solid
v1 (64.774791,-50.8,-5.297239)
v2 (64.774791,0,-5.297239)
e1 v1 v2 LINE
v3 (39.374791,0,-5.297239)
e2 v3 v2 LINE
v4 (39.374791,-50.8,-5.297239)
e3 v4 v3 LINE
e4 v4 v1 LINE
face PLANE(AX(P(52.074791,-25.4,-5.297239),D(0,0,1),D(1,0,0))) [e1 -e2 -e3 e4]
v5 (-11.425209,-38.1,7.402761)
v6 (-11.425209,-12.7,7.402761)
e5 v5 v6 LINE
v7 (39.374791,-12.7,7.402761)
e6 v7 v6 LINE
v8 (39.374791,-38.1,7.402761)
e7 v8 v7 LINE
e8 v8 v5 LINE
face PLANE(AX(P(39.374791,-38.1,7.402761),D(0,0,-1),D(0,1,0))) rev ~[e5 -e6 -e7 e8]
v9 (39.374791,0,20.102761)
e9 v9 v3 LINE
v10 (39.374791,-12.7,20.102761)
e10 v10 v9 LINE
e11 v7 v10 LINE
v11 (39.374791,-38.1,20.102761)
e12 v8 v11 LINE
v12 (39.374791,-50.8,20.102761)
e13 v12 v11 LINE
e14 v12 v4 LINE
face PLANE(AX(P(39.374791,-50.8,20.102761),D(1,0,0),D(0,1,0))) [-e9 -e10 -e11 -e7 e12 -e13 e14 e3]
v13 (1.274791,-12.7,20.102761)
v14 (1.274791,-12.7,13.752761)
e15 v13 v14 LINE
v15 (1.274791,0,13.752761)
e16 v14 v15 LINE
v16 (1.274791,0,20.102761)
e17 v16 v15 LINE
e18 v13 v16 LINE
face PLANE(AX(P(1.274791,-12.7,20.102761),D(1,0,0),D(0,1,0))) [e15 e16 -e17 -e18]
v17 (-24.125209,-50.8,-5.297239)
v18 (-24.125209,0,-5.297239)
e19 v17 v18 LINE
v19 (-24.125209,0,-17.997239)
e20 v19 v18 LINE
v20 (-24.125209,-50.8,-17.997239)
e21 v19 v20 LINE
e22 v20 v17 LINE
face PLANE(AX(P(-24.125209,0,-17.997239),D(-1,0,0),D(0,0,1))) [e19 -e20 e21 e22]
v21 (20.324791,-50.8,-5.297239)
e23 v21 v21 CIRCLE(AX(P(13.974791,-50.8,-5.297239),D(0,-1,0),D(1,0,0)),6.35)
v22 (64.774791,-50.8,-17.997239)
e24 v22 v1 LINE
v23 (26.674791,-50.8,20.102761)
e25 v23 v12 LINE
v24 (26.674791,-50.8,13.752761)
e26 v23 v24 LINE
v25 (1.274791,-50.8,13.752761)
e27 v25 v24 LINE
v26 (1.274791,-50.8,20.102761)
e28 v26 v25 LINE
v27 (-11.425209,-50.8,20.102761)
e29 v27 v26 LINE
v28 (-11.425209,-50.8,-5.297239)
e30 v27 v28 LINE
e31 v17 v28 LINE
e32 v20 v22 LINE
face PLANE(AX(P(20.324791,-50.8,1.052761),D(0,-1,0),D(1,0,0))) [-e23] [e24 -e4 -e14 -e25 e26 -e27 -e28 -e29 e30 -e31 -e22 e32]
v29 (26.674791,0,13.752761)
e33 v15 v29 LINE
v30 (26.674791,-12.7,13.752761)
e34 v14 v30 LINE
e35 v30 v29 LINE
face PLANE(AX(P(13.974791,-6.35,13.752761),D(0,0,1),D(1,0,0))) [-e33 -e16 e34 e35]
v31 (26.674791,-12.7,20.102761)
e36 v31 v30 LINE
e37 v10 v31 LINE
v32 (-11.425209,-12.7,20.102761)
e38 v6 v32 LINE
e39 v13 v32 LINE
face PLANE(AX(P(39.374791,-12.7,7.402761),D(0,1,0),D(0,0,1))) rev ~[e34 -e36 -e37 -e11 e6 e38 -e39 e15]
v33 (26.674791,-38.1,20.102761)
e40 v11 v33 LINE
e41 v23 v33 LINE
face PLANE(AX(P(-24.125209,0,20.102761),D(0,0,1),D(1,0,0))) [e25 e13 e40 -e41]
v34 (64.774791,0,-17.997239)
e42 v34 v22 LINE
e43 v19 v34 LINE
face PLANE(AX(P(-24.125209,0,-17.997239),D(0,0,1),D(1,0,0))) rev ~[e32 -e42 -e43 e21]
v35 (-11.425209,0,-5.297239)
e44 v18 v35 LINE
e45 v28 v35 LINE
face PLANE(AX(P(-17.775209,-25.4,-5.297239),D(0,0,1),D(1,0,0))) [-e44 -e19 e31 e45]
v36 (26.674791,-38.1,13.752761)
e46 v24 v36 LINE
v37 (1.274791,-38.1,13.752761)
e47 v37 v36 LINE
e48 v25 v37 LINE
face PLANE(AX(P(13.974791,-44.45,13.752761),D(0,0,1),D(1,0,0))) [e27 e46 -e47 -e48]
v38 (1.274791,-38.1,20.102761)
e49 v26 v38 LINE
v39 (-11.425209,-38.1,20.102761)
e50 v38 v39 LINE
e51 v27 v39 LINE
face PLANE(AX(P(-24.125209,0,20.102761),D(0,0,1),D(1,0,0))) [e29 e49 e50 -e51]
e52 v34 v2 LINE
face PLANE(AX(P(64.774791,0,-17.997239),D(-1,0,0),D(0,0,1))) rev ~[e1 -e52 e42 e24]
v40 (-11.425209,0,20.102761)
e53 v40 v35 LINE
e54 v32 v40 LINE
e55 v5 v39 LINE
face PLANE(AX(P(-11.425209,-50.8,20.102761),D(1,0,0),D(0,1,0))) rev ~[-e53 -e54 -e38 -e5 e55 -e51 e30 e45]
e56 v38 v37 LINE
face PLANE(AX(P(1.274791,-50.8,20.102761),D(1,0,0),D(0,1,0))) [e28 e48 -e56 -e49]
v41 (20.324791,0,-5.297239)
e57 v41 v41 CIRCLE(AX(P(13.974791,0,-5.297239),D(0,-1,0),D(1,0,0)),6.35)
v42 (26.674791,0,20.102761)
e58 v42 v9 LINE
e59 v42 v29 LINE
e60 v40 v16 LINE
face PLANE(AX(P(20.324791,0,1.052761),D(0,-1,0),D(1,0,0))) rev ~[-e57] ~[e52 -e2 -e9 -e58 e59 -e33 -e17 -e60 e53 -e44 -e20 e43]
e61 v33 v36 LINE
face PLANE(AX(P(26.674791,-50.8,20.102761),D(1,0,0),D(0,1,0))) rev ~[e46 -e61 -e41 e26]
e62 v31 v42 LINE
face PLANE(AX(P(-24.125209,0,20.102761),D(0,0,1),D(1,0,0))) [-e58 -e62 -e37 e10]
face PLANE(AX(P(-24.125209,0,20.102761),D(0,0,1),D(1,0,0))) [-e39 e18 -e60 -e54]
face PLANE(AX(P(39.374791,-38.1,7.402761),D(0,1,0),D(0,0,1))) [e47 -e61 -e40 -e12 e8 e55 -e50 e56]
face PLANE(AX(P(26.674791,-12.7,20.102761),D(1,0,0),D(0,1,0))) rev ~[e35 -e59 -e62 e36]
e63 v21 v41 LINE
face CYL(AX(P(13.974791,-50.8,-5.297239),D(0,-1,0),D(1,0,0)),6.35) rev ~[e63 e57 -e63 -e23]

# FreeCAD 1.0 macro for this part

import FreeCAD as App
import Part
import Sketcher

V = App.Vector
Q = App.Units.Quantity


def add_polygon(sketch, points):
    """Adds a closed chain of lines whose ends are joined by coincident constraints."""
    first, n = sketch.GeometryCount, len(points)
    for a, b in zip(points, points[1:] + points[:1]):
        sketch.addGeometry(Part.LineSegment(App.Vector(*a, 0), App.Vector(*b, 0)), False)
    for i in range(n):
        sketch.addConstraint(Sketcher.Constraint("Coincident", first + i, 2, first + (i + 1) % n, 1))

doc = App.newDocument("Part")
params = doc.addObject("Spreadsheet::Sheet", "Params")
for row, (alias, value) in enumerate([
    ("sketch1_width", "3.5 in"),
    ("sketch1_height", "1.5 in"),
    ("pad1_length", "2 in"),
    ("sketch2_height", "2 in"),
    ("sketch2_width", "0.5 in"),
    ("pocket1_length", "1 in"),
    ("sketch3_width", "1 in"),
    ("sketch3_height", "2 in"),
    ("pocket2_length", "1 in"),
    ("sketch4_width", "1 in"),
    ("sketch4_height", "0.5 in"),
    ("pocket3_length", "0.25 in"),
    ("sketch5_width", "1 in"),
    ("sketch5_height", "0.5 in"),
    ("pocket4_length", "0.25 in"),
    ("sketch6_width", "1 in"),
    ("sketch6_height", "0.5 in"),
    ("sketch7_diameter", "0.5 in"),
], start=1):
    params.set(f"A{row}", alias)
    params.set(f"B{row}", "=" + value)
    params.setAlias(f"B{row}", alias)

body = doc.addObject("PartDesign::Body", "Body")

# Sketch on XZ plane
sketch1 = doc.addObject("Sketcher::SketchObject", "Sketch")
body.addObject(sketch1)
sketch1.AttachmentSupport = (doc.XZ_Plane, [""])
sketch1.MapMode = "FlatFace"
add_polygon(sketch1, [(-24, 20), (-24, -18), (65, -18), (65, 20)])  # lines 0-3
sketch1.addConstraint(Sketcher.Constraint("Vertical", 0))
sketch1.addConstraint(Sketcher.Constraint("Horizontal", 1))
sketch1.addConstraint(Sketcher.Constraint("Vertical", 2))
sketch1.addConstraint(Sketcher.Constraint("Horizontal", 3))
sketch1.addConstraint(Sketcher.Constraint("DistanceX", 1, 1, 1, 2, Q("3.5 in")))
sketch1.addConstraint(Sketcher.Constraint("DistanceY", 0, 2, 0, 1, Q("1.5 in")))
sketch1.addConstraint(Sketcher.Constraint("DistanceX", 0, 2, -1, 1, Q("24.125209 mm")))
sketch1.addConstraint(Sketcher.Constraint("DistanceY", 0, 2, -1, 1, Q("17.997239 mm")))
sketch1.setExpression("Constraints[8]", "Params.sketch1_width")
sketch1.setExpression("Constraints[9]", "Params.sketch1_height")
pad1 = doc.addObject("PartDesign::Pad", "Pad")
body.addObject(pad1)
pad1.Profile = sketch1
pad1.setExpression("Length", "Params.pad1_length")

# Sketch on XY plane
sketch2 = doc.addObject("Sketcher::SketchObject", "Sketch001")
body.addObject(sketch2)
sketch2.AttachmentSupport = (doc.XY_Plane, [""])
sketch2.MapMode = "FlatFace"
sketch2.AttachmentOffset = App.Placement(V(0, 0, 20.102761), App.Rotation())
add_polygon(sketch2, [(-24, 0), (-24, -51), (-11, -51), (-11, 0)])  # lines 0-3
sketch2.addConstraint(Sketcher.Constraint("Vertical", 0))
sketch2.addConstraint(Sketcher.Constraint("Horizontal", 1))
sketch2.addConstraint(Sketcher.Constraint("Vertical", 2))
sketch2.addConstraint(Sketcher.Constraint("Horizontal", 3))
sketch2.addConstraint(Sketcher.Constraint("PointOnObject", 2, 2, -1))
sketch2.addConstraint(Sketcher.Constraint("DistanceY", 0, 2, 0, 1, Q("2 in")))
sketch2.addConstraint(Sketcher.Constraint("DistanceX", 1, 1, 1, 2, Q("0.5 in")))
sketch2.addConstraint(Sketcher.Constraint("DistanceX", 0, 2, -1, 1, Q("24.125209 mm")))
sketch2.setExpression("Constraints[9]", "Params.sketch2_height")
sketch2.setExpression("Constraints[10]", "Params.sketch2_width")
pocket1 = doc.addObject("PartDesign::Pocket", "Pocket")
body.addObject(pocket1)
pocket1.Profile = sketch2
pocket1.setExpression("Length", "Params.pocket1_length")

# Sketch on XY plane
sketch3 = doc.addObject("Sketcher::SketchObject", "Sketch002")
body.addObject(sketch3)
sketch3.AttachmentSupport = (doc.XY_Plane, [""])
sketch3.MapMode = "FlatFace"
sketch3.AttachmentOffset = App.Placement(V(0, 0, 20.102761), App.Rotation())
add_polygon(sketch3, [(39, 0), (39, -51), (65, -51), (65, 0)])  # lines 0-3
sketch3.addConstraint(Sketcher.Constraint("Vertical", 0))
sketch3.addConstraint(Sketcher.Constraint("Horizontal", 1))
sketch3.addConstraint(Sketcher.Constraint("Vertical", 2))
sketch3.addConstraint(Sketcher.Constraint("Horizontal", 3))
sketch3.addConstraint(Sketcher.Constraint("PointOnObject", 2, 2, -1))
sketch3.addConstraint(Sketcher.Constraint("DistanceX", 1, 1, 1, 2, Q("1 in")))
sketch3.addConstraint(Sketcher.Constraint("DistanceY", 0, 2, 0, 1, Q("2 in")))
sketch3.addConstraint(Sketcher.Constraint("DistanceX", -1, 1, 0, 2, Q("39.374791 mm")))
sketch3.setExpression("Constraints[9]", "Params.sketch3_width")
sketch3.setExpression("Constraints[10]", "Params.sketch3_height")
pocket2 = doc.addObject("PartDesign::Pocket", "Pocket001")
body.addObject(pocket2)
pocket2.Profile = sketch3
pocket2.setExpression("Length", "Params.pocket2_length")

# Sketch on XY plane
sketch4 = doc.addObject("Sketcher::SketchObject", "Sketch003")
body.addObject(sketch4)
sketch4.AttachmentSupport = (doc.XY_Plane, [""])
sketch4.MapMode = "FlatFace"
sketch4.AttachmentOffset = App.Placement(V(0, 0, 20.102761), App.Rotation())
add_polygon(sketch4, [(1, -38), (1, -51), (27, -51), (27, -38)])  # lines 0-3
sketch4.addConstraint(Sketcher.Constraint("Vertical", 0))
sketch4.addConstraint(Sketcher.Constraint("Horizontal", 1))
sketch4.addConstraint(Sketcher.Constraint("Vertical", 2))
sketch4.addConstraint(Sketcher.Constraint("Horizontal", 3))
sketch4.addConstraint(Sketcher.Constraint("DistanceX", 1, 1, 1, 2, Q("1 in")))
sketch4.addConstraint(Sketcher.Constraint("DistanceY", 0, 2, 0, 1, Q("0.5 in")))
sketch4.addConstraint(Sketcher.Constraint("DistanceY", 0, 2, -1, 1, Q("2 in")))
sketch4.addConstraint(Sketcher.Constraint("DistanceX", -1, 1, 0, 2, Q("1.274791 mm")))
sketch4.setExpression("Constraints[8]", "Params.sketch4_width")
sketch4.setExpression("Constraints[9]", "Params.sketch4_height")
pocket3 = doc.addObject("PartDesign::Pocket", "Pocket002")
body.addObject(pocket3)
pocket3.Profile = sketch4
pocket3.setExpression("Length", "Params.pocket3_length")

# Sketch on XY plane
sketch5 = doc.addObject("Sketcher::SketchObject", "Sketch004")
body.addObject(sketch5)
sketch5.AttachmentSupport = (doc.XY_Plane, [""])
sketch5.MapMode = "FlatFace"
sketch5.AttachmentOffset = App.Placement(V(0, 0, 20.102761), App.Rotation())
add_polygon(sketch5, [(1, 0), (1, -13), (27, -13), (27, 0)])  # lines 0-3
sketch5.addConstraint(Sketcher.Constraint("Vertical", 0))
sketch5.addConstraint(Sketcher.Constraint("Horizontal", 1))
sketch5.addConstraint(Sketcher.Constraint("Vertical", 2))
sketch5.addConstraint(Sketcher.Constraint("Horizontal", 3))
sketch5.addConstraint(Sketcher.Constraint("PointOnObject", 2, 2, -1))
sketch5.addConstraint(Sketcher.Constraint("DistanceX", 1, 1, 1, 2, Q("1 in")))
sketch5.addConstraint(Sketcher.Constraint("DistanceY", 0, 2, 0, 1, Q("0.5 in")))
sketch5.addConstraint(Sketcher.Constraint("DistanceX", -1, 1, 0, 2, Q("1.274791 mm")))
sketch5.setExpression("Constraints[9]", "Params.sketch5_width")
sketch5.setExpression("Constraints[10]", "Params.sketch5_height")
pocket4 = doc.addObject("PartDesign::Pocket", "Pocket003")
body.addObject(pocket4)
pocket4.Profile = sketch5
pocket4.setExpression("Length", "Params.pocket4_length")

# Sketch on YZ plane
sketch6 = doc.addObject("Sketcher::SketchObject", "Sketch005")
body.addObject(sketch6)
sketch6.AttachmentSupport = (doc.YZ_Plane, [""])
sketch6.MapMode = "FlatFace"
sketch6.AttachmentOffset = App.Placement(V(0, 0, 39.374791), App.Rotation())
add_polygon(sketch6, [(-38, 20), (-38, 7), (-13, 7), (-13, 20)])  # lines 0-3
sketch6.addConstraint(Sketcher.Constraint("Vertical", 0))
sketch6.addConstraint(Sketcher.Constraint("Horizontal", 1))
sketch6.addConstraint(Sketcher.Constraint("Vertical", 2))
sketch6.addConstraint(Sketcher.Constraint("Horizontal", 3))
sketch6.addConstraint(Sketcher.Constraint("DistanceX", 1, 1, 1, 2, Q("1 in")))
sketch6.addConstraint(Sketcher.Constraint("DistanceY", 0, 2, 0, 1, Q("0.5 in")))
sketch6.addConstraint(Sketcher.Constraint("DistanceX", 0, 2, -1, 1, Q("1.5 in")))
sketch6.addConstraint(Sketcher.Constraint("DistanceY", -1, 1, 0, 2, Q("7.402761 mm")))
sketch6.setExpression("Constraints[8]", "Params.sketch6_width")
sketch6.setExpression("Constraints[9]", "Params.sketch6_height")
pocket5 = doc.addObject("PartDesign::Pocket", "Pocket004")
body.addObject(pocket5)
pocket5.Profile = sketch6
pocket5.Type = "ThroughAll"

# Sketch on XZ plane
sketch7 = doc.addObject("Sketcher::SketchObject", "Sketch006")
body.addObject(sketch7)
sketch7.AttachmentSupport = (doc.XZ_Plane, [""])
sketch7.MapMode = "FlatFace"
sketch7.AttachmentOffset = App.Placement(V(0, 0, 2 * 25.4), App.Rotation())
sketch7.addGeometry(Part.Circle(V(14, -5, 0), V(0, 0, 1), 6), False)
sketch7.addConstraint(Sketcher.Constraint("Diameter", 0, Q("0.5 in")))
sketch7.addConstraint(Sketcher.Constraint("DistanceX", -1, 1, 0, 3, Q("13.974791 mm")))
sketch7.addConstraint(Sketcher.Constraint("DistanceY", 0, 3, -1, 1, Q("5.297239 mm")))
sketch7.setExpression("Constraints[0]", "Params.sketch7_diameter")
pocket6 = doc.addObject("PartDesign::Pocket", "Pocket005")
body.addObject(pocket6)
pocket6.Profile = sketch7
pocket6.Type = "ThroughAll"

doc.recompute()
